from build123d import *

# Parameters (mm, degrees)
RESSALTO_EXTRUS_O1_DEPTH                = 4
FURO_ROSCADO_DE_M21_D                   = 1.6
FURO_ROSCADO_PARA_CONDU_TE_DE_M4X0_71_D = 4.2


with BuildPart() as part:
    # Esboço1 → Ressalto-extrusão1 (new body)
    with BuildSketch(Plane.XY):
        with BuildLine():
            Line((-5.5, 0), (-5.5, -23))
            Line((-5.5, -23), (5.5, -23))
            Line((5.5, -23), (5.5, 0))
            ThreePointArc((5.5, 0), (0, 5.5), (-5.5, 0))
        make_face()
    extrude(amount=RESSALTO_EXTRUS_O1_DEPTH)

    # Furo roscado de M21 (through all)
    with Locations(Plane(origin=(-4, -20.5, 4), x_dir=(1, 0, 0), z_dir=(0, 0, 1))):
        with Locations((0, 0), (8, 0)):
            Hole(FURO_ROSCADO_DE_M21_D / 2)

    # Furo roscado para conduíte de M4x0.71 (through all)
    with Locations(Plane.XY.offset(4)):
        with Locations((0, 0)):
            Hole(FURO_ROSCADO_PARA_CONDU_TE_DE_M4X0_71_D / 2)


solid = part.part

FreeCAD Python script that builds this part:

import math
import FreeCAD as App
import Part
import Sketcher

doc = App.newDocument("Part")
body = doc.addObject("PartDesign::Body", "Body")

sketch1 = body.newObject("Sketcher::SketchObject", "Sketch")
sketch1.AttachmentSupport = (doc.getObject("XY_Plane"), [""])
sketch1.MapMode = "FlatFace"
sketch1.addGeometry([
    Part.LineSegment(App.Vector(-5.5, 0, 0), App.Vector(-5.5, -23, 0)),
    Part.LineSegment(App.Vector(-5.5, -23, 0), App.Vector(5.5, -23, 0)),
    Part.LineSegment(App.Vector(5.5, -23, 0), App.Vector(5.5, 0, 0)),
    Part.ArcOfCircle(Part.Circle(App.Vector(0, 0, 0), App.Vector(0, 0, 1), 5.5), math.radians(0), math.radians(180)),
], False)
sketch1.addConstraint([
    Sketcher.Constraint("Coincident", 0, 2, 1, 1),
    Sketcher.Constraint("Coincident", 1, 2, 2, 1),
    Sketcher.Constraint("Tangent", 2, 2, 3, 1),
    Sketcher.Constraint("Tangent", 3, 2, 0, 1),
    Sketcher.Constraint("Vertical", 0),
    Sketcher.Constraint("Horizontal", 1),
    Sketcher.Constraint("Vertical", 2),
    Sketcher.Constraint("Coincident", 3, 3, -1, 1),
    Sketcher.Constraint("Radius", 3, 5.5),
    Sketcher.Constraint("DistanceY", 0, 2, 0, 1, 23.0),
])
pad1 = body.newObject("PartDesign::Pad", "Pad")
pad1.Profile = sketch1
pad1.Length = 4

sketch2 = body.newObject("Sketcher::SketchObject", "Sketch001")
sketch2.AttachmentSupport = (doc.getObject("XY_Plane"), [""])
sketch2.MapMode = "FlatFace"
sketch2.AttachmentOffset = App.Placement(App.Vector(0, 0, 4), App.Rotation())
sketch2.addGeometry([
    Part.Circle(App.Vector(-4, -20.5, 0), App.Vector(0, 0, 1), 0.8),
    Part.Circle(App.Vector(4, -20.5, 0), App.Vector(0, 0, 1), 0.8),
], False)
sketch2.addConstraint([
    Sketcher.Constraint("Equal", 0, 1),
    Sketcher.Constraint("Symmetric", 0, 3, 1, 3, -2),
    Sketcher.Constraint("Diameter", 0, 1.6),
    Sketcher.Constraint("DistanceX", 0, 3, -1, 1, 4.0),
    Sketcher.Constraint("DistanceY", 0, 3, -1, 1, 20.5),
])
doc.recompute()
hole = body.newObject("PartDesign::Hole", "Hole")
hole.Profile = sketch2
hole.ThreadType = "None"
hole.Diameter = 1.6
hole.DepthType = "ThroughAll"

sketch3 = body.newObject("Sketcher::SketchObject", "Sketch002")
sketch3.AttachmentSupport = (doc.getObject("XY_Plane"), [""])
sketch3.MapMode = "FlatFace"
sketch3.AttachmentOffset = App.Placement(App.Vector(0, 0, 4), App.Rotation())
sketch3.addGeometry(Part.Circle(App.Vector(0, 0, 0), App.Vector(0, 0, 1), 2.1), False)
sketch3.addConstraint([
    Sketcher.Constraint("Coincident", 0, 3, -1, 1),
    Sketcher.Constraint("Diameter", 0, 4.2),
])
doc.recompute()
hole2 = body.newObject("PartDesign::Hole", "Hole001")
hole2.Profile = sketch3
hole2.ThreadType = "None"
hole2.Diameter = 4.2
hole2.DepthType = "ThroughAll"

doc.recompute()
